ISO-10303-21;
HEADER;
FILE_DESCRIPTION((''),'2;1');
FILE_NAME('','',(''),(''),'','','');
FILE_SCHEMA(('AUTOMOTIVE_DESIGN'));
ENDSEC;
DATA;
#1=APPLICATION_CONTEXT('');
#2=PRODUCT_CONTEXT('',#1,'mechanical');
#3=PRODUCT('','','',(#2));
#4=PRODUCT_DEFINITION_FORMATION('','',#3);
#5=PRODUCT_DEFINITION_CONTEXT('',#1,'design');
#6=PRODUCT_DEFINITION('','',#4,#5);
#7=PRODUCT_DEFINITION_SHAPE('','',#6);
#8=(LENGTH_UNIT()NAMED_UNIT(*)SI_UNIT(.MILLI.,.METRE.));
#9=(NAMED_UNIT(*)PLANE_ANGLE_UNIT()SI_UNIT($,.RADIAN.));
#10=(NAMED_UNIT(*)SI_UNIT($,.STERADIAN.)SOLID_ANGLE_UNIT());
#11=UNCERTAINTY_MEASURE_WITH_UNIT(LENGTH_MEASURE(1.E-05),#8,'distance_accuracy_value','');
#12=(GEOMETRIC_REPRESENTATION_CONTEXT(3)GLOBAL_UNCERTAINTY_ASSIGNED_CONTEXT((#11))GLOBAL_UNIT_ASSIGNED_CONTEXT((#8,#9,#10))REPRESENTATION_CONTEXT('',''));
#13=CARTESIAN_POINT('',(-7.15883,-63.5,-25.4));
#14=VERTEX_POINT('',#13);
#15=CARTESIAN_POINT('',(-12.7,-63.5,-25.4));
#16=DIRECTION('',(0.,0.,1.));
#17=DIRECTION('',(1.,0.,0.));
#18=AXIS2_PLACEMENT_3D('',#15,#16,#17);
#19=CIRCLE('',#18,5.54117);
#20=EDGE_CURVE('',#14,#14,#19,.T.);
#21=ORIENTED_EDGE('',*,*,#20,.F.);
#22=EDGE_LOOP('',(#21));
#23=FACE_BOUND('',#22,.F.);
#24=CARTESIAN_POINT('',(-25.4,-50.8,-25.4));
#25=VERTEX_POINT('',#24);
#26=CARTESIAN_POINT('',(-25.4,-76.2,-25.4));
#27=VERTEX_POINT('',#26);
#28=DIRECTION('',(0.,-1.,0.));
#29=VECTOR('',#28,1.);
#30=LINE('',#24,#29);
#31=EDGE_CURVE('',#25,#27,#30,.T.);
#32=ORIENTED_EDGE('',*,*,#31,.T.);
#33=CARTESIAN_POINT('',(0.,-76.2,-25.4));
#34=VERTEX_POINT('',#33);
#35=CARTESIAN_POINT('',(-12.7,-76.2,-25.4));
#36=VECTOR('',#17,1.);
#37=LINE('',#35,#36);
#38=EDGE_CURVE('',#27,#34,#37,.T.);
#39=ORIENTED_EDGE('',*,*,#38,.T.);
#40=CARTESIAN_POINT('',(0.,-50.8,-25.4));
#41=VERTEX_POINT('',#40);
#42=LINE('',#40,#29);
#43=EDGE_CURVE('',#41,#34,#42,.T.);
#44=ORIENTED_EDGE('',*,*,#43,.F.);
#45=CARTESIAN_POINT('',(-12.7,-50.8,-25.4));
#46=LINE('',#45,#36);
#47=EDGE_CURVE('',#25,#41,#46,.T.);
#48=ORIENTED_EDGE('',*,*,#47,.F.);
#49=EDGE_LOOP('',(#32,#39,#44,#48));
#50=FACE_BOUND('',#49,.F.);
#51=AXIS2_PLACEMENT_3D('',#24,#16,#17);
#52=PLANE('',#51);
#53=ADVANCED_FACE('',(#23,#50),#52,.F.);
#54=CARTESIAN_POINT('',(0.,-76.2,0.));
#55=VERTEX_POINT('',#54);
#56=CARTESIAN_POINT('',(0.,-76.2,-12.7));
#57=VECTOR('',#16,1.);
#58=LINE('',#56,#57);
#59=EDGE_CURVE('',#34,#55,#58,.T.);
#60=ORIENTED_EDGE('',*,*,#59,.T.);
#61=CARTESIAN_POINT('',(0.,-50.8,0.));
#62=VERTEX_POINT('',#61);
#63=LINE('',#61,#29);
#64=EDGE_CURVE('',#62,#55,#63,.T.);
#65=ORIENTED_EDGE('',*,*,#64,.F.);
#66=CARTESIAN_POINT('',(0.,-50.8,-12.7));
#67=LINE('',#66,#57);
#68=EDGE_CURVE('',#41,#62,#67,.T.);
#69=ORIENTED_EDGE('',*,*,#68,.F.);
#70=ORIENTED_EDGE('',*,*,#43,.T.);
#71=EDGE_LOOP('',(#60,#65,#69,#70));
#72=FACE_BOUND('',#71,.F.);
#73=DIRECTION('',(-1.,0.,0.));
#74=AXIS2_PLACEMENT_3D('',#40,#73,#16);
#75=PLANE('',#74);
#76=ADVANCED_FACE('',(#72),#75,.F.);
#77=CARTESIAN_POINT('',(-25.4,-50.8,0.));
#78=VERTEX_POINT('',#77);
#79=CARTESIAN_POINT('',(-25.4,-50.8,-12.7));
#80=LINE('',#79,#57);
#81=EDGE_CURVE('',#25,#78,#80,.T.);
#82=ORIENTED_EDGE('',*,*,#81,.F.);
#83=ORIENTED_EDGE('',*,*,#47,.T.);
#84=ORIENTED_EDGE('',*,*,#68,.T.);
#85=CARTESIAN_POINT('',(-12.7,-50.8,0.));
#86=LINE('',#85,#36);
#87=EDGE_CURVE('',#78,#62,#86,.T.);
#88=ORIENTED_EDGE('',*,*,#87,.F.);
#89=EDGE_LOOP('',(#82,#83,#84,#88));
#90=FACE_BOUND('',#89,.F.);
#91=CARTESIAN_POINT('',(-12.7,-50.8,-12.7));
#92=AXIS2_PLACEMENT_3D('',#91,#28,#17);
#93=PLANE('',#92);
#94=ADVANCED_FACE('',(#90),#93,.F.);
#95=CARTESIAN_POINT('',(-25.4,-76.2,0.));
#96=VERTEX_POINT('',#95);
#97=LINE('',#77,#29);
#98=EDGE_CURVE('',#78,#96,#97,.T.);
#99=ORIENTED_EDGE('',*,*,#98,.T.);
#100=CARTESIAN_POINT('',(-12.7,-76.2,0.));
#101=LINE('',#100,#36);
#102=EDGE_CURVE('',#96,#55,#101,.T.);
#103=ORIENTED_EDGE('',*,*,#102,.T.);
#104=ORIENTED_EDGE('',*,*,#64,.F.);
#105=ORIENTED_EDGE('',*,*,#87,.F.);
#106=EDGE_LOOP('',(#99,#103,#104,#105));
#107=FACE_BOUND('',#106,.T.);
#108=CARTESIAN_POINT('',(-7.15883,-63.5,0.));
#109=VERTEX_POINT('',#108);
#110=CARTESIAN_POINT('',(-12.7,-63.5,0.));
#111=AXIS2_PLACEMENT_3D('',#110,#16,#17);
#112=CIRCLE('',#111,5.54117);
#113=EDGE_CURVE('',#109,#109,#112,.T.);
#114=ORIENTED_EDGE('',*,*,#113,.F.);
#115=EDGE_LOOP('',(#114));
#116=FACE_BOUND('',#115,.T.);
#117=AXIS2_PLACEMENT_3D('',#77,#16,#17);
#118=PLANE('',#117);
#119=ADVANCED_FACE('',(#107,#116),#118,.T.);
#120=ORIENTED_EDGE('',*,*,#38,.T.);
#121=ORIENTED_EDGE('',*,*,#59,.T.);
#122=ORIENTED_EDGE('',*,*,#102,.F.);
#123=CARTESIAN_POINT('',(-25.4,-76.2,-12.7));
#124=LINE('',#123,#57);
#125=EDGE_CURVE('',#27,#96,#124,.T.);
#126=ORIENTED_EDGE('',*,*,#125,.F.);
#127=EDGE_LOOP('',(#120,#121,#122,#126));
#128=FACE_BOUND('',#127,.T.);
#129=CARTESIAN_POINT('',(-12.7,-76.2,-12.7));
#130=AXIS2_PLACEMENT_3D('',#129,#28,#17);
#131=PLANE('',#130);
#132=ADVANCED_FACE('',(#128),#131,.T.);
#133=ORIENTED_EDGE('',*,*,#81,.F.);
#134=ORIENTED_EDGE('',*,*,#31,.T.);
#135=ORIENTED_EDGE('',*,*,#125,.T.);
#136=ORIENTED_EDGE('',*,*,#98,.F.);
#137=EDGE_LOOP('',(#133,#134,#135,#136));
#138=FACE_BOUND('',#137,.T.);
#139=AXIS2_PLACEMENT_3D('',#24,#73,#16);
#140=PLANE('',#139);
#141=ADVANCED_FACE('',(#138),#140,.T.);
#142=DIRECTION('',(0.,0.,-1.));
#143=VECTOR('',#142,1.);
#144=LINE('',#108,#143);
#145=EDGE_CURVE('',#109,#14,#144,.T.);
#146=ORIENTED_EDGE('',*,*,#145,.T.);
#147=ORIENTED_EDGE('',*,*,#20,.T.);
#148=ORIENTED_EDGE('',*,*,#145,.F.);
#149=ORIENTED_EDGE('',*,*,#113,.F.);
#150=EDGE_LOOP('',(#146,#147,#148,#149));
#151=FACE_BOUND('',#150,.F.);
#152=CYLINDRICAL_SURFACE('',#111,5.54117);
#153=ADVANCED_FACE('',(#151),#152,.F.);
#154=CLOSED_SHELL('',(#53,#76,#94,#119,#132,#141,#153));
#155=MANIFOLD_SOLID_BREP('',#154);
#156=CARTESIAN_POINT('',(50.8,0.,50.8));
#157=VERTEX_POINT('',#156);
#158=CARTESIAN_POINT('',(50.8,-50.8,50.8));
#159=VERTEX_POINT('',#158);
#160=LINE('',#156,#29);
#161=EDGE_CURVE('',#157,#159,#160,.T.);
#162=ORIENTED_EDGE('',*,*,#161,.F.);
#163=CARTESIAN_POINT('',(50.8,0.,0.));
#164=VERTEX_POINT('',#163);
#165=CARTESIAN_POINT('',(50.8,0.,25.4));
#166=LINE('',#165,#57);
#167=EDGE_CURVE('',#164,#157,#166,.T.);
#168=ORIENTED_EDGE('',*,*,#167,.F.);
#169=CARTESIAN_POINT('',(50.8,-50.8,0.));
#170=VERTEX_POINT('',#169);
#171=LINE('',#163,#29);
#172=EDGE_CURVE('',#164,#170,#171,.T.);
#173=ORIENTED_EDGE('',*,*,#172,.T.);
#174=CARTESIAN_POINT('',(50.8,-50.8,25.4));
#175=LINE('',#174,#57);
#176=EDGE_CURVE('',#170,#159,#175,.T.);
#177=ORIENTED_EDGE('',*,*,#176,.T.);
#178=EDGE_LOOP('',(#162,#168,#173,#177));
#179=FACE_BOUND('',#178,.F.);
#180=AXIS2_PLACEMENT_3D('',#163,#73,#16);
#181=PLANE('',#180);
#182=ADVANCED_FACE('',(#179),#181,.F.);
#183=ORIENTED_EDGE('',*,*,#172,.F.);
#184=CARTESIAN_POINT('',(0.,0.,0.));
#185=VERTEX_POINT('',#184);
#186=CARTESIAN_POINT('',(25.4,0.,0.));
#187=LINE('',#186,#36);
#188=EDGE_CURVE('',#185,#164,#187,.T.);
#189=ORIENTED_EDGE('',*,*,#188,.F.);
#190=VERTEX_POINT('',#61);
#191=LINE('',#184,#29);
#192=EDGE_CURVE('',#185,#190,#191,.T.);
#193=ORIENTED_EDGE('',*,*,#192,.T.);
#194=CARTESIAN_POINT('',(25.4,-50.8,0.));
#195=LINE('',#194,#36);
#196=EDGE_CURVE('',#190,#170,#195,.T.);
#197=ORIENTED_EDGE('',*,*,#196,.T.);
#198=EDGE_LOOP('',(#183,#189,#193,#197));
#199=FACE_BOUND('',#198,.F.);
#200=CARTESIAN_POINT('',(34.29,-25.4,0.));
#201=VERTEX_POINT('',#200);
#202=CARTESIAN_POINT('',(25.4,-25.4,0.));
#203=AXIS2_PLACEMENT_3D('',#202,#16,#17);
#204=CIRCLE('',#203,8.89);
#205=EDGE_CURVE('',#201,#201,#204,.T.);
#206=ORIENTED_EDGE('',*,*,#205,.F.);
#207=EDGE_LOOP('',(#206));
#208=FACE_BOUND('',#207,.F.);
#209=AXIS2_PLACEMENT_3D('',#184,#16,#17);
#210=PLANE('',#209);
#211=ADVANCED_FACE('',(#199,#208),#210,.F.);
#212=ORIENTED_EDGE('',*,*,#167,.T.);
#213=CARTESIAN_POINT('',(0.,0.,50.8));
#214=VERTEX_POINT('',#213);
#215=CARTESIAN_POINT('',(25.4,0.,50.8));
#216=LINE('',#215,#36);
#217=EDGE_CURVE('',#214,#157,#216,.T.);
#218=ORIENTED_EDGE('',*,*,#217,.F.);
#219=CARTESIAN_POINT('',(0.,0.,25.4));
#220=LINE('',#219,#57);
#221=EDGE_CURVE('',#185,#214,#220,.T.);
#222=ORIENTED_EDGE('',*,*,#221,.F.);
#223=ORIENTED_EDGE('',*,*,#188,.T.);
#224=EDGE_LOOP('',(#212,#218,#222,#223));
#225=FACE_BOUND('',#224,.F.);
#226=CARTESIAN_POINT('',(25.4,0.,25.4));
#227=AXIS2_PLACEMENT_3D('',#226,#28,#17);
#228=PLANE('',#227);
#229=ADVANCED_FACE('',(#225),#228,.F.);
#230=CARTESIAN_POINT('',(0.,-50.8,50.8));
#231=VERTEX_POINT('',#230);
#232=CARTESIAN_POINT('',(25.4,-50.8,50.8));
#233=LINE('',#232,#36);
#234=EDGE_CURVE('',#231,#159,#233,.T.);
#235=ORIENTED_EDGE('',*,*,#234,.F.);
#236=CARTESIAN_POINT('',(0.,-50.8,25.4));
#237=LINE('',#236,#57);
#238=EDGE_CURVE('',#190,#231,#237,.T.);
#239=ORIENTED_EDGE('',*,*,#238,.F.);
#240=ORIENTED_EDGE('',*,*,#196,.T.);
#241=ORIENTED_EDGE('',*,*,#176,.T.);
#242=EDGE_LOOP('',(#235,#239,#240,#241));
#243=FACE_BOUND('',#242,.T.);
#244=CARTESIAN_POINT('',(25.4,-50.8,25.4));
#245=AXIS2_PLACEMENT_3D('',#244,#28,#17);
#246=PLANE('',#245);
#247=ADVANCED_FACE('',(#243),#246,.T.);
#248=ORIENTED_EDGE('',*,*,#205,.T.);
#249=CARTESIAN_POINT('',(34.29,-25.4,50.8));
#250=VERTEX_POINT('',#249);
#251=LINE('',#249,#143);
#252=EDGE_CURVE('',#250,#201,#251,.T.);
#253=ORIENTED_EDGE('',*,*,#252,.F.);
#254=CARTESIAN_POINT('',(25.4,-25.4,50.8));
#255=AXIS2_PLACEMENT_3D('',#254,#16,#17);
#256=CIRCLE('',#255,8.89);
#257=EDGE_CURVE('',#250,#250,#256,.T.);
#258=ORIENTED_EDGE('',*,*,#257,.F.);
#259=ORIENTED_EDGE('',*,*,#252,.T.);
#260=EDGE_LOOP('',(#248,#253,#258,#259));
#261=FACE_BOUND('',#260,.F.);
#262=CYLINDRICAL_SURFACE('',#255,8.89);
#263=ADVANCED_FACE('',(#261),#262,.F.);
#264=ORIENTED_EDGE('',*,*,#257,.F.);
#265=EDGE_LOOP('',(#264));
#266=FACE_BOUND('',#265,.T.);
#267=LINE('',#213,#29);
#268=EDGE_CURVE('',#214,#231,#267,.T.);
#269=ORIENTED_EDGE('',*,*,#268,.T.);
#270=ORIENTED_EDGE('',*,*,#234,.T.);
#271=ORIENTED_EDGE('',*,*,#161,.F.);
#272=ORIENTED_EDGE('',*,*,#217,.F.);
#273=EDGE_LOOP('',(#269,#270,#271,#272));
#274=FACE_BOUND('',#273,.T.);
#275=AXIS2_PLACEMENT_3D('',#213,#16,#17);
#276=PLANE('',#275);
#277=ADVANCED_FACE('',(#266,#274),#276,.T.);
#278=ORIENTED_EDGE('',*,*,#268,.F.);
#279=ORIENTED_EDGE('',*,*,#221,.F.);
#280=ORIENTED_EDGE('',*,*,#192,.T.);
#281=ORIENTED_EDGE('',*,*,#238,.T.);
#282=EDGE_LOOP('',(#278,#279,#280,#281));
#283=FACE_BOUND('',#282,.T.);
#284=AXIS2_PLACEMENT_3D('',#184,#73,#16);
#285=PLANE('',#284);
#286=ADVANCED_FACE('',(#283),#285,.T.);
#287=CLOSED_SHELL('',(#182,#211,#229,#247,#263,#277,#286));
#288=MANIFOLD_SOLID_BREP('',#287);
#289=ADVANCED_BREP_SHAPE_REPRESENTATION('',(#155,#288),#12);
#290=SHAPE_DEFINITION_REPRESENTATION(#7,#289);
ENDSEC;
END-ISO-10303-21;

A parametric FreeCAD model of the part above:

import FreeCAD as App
import Part
import Sketcher
Q = App.Units.Quantity


def add_polygon(sketch, points):
    """Adds a closed chain of lines whose ends are joined by coincident constraints."""
    first, n = sketch.GeometryCount, len(points)
    for a, b in zip(points, points[1:] + points[:1]):
        sketch.addGeometry(Part.LineSegment(App.Vector(*a, 0), App.Vector(*b, 0)), False)
    for i in range(n):
        sketch.addConstraint(Sketcher.Constraint("Coincident", first + i, 2, first + (i + 1) % n, 1))

doc = App.newDocument("Part")
body = doc.addObject("PartDesign::Body", "Body")

# Sketch on XZ plane
sketch1 = body.newObject("Sketcher::SketchObject", "Sketch")
sketch1.AttachmentSupport = (doc.getObject("XZ_Plane"), [""])
sketch1.MapMode = "FlatFace"
add_polygon(sketch1, [(0, 51), (0, 0), (51, 0), (51, 51)])  # lines 0-3
sketch1.addConstraint(Sketcher.Constraint("Vertical", 0))
sketch1.addConstraint(Sketcher.Constraint("Horizontal", 1))
sketch1.addConstraint(Sketcher.Constraint("Vertical", 2))
sketch1.addConstraint(Sketcher.Constraint("Horizontal", 3))
sketch1.addConstraint(Sketcher.Constraint("Coincident", 0, 2, -1, 1))
sketch1.addConstraint(Sketcher.Constraint("Equal", 3, 0))
sketch1.addConstraint(Sketcher.Constraint("DistanceX", 1, 1, 1, 2, Q("2 in")))
pad1 = body.newObject("PartDesign::Pad", "Pad")
pad1.Profile = sketch1
pad1.Length = Q("2 in")

# Sketch on XY plane
sketch2 = body.newObject("Sketcher::SketchObject", "Sketch001")
sketch2.AttachmentSupport = (doc.getObject("XY_Plane"), [""])
sketch2.MapMode = "FlatFace"
sketch2.AttachmentOffset = App.Placement(App.Vector(0, 0, 2 * 25.4), App.Rotation())
sketch2.addGeometry(Part.Circle(App.Vector(25, -25, 0), App.Vector(0, 0, 1), 9), False)
sketch2.addConstraint(Sketcher.Constraint("Diameter", 0, Q("0.7 in")))
sketch2.addConstraint(Sketcher.Constraint("DistanceX", -1, 1, 0, 3, Q("1 in")))
sketch2.addConstraint(Sketcher.Constraint("DistanceY", 0, 3, -1, 1, Q("1 in")))
pocket1 = body.newObject("PartDesign::Pocket", "Pocket")
pocket1.Profile = sketch2
pocket1.Length = Q("2 in")
body2 = doc.addObject("PartDesign::Body", "Body001")

# Sketch on XZ plane
sketch3 = body2.newObject("Sketcher::SketchObject", "Sketch002")
sketch3.AttachmentSupport = (doc.getObject("XZ_Plane001"), [""])
sketch3.MapMode = "FlatFace"
sketch3.AttachmentOffset = App.Placement(App.Vector(0, 0, 2 * 25.4), App.Rotation())
add_polygon(sketch3, [(-25, 0), (-25, -25), (0, -25), (0, 0)])  # lines 0-3
sketch3.addConstraint(Sketcher.Constraint("Vertical", 0))
sketch3.addConstraint(Sketcher.Constraint("Horizontal", 1))
sketch3.addConstraint(Sketcher.Constraint("Vertical", 2))
sketch3.addConstraint(Sketcher.Constraint("Horizontal", 3))
sketch3.addConstraint(Sketcher.Constraint("Coincident", 2, 2, -1, 1))
sketch3.addConstraint(Sketcher.Constraint("Equal", 3, 0))
sketch3.addConstraint(Sketcher.Constraint("DistanceX", 1, 1, 1, 2, Q("1 in")))
pad2 = body2.newObject("PartDesign::Pad", "Pad001")
pad2.Profile = sketch3
pad2.Length = Q("1 in")

# Sketch on XY plane
sketch4 = body2.newObject("Sketcher::SketchObject", "Sketch003")
sketch4.AttachmentSupport = (doc.getObject("XY_Plane001"), [""])
sketch4.MapMode = "FlatFace"
sketch4.addGeometry(Part.Circle(App.Vector(-13, -64, 0), App.Vector(0, 0, 1), 6), False)
sketch4.addConstraint(Sketcher.Constraint("DistanceX", 0, 3, -1, 1, Q("0.5 in")))
sketch4.addConstraint(Sketcher.Constraint("DistanceY", 0, 3, -1, 1, Q("2.5 in")))
sketch4.addConstraint(Sketcher.Constraint("Diameter", 0, Q("11.08234 mm")))
pocket2 = body2.newObject("PartDesign::Pocket", "Pocket001")
pocket2.Profile = sketch4
pocket2.Length = Q("1 in")

doc.recompute()
